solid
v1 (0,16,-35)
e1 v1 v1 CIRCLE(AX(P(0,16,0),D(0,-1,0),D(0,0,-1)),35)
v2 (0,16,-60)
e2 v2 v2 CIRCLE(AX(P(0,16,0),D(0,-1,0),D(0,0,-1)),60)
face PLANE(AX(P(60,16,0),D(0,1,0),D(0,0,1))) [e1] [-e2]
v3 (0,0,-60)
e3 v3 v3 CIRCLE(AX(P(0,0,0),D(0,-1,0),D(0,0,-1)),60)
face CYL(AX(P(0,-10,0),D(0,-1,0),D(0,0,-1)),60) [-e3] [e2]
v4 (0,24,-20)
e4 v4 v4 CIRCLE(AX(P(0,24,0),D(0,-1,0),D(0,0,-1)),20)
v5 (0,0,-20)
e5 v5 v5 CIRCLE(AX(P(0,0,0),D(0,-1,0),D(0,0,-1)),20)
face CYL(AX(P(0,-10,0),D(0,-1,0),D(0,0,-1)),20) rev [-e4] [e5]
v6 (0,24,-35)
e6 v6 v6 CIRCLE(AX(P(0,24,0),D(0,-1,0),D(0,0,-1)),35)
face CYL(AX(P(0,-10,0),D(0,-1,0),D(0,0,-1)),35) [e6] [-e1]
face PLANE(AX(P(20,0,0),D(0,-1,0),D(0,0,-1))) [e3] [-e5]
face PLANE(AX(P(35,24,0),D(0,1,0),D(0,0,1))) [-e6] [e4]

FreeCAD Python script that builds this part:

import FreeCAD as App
import Part
import Sketcher
Q = App.Units.Quantity


def add_polygon(sketch, points):
    """Adds a closed chain of lines whose ends are joined by coincident constraints."""
    first, n = sketch.GeometryCount, len(points)
    for a, b in zip(points, points[1:] + points[:1]):
        sketch.addGeometry(Part.LineSegment(App.Vector(*a, 0), App.Vector(*b, 0)), False)
    for i in range(n):
        sketch.addConstraint(Sketcher.Constraint("Coincident", first + i, 2, first + (i + 1) % n, 1))

doc = App.newDocument("Part")
body = doc.addObject("PartDesign::Body", "Body")

# Sketch on XY plane
sketch1 = body.newObject("Sketcher::SketchObject", "Sketch")
sketch1.AttachmentSupport = (doc.getObject("XY_Plane"), [""])
sketch1.MapMode = "FlatFace"
add_polygon(sketch1, [(20, 0), (60, 0), (60, 16), (35, 16), (35, 24), (20, 24)])  # lines 0-5
sketch1.addConstraint([
    Sketcher.Constraint("Horizontal", 0),
    Sketcher.Constraint("Vertical", 1),
    Sketcher.Constraint("Horizontal", 2),
    Sketcher.Constraint("Vertical", 3),
    Sketcher.Constraint("Horizontal", 4),
    Sketcher.Constraint("Vertical", 5),
    Sketcher.Constraint("PointOnObject", 0, 2, -1),
    Sketcher.Constraint("DistanceX", 0, 1, 0, 2, Q("40 mm")),
    Sketcher.Constraint("DistanceX", 2, 2, 2, 1, Q("25 mm")),
    Sketcher.Constraint("DistanceY", 1, 1, 1, 2, Q("16 mm")),
    Sketcher.Constraint("DistanceY", 3, 1, 3, 2, Q("8 mm")),
    Sketcher.Constraint("DistanceX", -1, 1, 0, 2, Q("60 mm")),
])
revolution = body.newObject("PartDesign::Revolution", "Revolution")
revolution.Profile = sketch1
revolution.ReferenceAxis = (sketch1, ["V_Axis"])
revolution.Angle = 360

doc.recompute()
